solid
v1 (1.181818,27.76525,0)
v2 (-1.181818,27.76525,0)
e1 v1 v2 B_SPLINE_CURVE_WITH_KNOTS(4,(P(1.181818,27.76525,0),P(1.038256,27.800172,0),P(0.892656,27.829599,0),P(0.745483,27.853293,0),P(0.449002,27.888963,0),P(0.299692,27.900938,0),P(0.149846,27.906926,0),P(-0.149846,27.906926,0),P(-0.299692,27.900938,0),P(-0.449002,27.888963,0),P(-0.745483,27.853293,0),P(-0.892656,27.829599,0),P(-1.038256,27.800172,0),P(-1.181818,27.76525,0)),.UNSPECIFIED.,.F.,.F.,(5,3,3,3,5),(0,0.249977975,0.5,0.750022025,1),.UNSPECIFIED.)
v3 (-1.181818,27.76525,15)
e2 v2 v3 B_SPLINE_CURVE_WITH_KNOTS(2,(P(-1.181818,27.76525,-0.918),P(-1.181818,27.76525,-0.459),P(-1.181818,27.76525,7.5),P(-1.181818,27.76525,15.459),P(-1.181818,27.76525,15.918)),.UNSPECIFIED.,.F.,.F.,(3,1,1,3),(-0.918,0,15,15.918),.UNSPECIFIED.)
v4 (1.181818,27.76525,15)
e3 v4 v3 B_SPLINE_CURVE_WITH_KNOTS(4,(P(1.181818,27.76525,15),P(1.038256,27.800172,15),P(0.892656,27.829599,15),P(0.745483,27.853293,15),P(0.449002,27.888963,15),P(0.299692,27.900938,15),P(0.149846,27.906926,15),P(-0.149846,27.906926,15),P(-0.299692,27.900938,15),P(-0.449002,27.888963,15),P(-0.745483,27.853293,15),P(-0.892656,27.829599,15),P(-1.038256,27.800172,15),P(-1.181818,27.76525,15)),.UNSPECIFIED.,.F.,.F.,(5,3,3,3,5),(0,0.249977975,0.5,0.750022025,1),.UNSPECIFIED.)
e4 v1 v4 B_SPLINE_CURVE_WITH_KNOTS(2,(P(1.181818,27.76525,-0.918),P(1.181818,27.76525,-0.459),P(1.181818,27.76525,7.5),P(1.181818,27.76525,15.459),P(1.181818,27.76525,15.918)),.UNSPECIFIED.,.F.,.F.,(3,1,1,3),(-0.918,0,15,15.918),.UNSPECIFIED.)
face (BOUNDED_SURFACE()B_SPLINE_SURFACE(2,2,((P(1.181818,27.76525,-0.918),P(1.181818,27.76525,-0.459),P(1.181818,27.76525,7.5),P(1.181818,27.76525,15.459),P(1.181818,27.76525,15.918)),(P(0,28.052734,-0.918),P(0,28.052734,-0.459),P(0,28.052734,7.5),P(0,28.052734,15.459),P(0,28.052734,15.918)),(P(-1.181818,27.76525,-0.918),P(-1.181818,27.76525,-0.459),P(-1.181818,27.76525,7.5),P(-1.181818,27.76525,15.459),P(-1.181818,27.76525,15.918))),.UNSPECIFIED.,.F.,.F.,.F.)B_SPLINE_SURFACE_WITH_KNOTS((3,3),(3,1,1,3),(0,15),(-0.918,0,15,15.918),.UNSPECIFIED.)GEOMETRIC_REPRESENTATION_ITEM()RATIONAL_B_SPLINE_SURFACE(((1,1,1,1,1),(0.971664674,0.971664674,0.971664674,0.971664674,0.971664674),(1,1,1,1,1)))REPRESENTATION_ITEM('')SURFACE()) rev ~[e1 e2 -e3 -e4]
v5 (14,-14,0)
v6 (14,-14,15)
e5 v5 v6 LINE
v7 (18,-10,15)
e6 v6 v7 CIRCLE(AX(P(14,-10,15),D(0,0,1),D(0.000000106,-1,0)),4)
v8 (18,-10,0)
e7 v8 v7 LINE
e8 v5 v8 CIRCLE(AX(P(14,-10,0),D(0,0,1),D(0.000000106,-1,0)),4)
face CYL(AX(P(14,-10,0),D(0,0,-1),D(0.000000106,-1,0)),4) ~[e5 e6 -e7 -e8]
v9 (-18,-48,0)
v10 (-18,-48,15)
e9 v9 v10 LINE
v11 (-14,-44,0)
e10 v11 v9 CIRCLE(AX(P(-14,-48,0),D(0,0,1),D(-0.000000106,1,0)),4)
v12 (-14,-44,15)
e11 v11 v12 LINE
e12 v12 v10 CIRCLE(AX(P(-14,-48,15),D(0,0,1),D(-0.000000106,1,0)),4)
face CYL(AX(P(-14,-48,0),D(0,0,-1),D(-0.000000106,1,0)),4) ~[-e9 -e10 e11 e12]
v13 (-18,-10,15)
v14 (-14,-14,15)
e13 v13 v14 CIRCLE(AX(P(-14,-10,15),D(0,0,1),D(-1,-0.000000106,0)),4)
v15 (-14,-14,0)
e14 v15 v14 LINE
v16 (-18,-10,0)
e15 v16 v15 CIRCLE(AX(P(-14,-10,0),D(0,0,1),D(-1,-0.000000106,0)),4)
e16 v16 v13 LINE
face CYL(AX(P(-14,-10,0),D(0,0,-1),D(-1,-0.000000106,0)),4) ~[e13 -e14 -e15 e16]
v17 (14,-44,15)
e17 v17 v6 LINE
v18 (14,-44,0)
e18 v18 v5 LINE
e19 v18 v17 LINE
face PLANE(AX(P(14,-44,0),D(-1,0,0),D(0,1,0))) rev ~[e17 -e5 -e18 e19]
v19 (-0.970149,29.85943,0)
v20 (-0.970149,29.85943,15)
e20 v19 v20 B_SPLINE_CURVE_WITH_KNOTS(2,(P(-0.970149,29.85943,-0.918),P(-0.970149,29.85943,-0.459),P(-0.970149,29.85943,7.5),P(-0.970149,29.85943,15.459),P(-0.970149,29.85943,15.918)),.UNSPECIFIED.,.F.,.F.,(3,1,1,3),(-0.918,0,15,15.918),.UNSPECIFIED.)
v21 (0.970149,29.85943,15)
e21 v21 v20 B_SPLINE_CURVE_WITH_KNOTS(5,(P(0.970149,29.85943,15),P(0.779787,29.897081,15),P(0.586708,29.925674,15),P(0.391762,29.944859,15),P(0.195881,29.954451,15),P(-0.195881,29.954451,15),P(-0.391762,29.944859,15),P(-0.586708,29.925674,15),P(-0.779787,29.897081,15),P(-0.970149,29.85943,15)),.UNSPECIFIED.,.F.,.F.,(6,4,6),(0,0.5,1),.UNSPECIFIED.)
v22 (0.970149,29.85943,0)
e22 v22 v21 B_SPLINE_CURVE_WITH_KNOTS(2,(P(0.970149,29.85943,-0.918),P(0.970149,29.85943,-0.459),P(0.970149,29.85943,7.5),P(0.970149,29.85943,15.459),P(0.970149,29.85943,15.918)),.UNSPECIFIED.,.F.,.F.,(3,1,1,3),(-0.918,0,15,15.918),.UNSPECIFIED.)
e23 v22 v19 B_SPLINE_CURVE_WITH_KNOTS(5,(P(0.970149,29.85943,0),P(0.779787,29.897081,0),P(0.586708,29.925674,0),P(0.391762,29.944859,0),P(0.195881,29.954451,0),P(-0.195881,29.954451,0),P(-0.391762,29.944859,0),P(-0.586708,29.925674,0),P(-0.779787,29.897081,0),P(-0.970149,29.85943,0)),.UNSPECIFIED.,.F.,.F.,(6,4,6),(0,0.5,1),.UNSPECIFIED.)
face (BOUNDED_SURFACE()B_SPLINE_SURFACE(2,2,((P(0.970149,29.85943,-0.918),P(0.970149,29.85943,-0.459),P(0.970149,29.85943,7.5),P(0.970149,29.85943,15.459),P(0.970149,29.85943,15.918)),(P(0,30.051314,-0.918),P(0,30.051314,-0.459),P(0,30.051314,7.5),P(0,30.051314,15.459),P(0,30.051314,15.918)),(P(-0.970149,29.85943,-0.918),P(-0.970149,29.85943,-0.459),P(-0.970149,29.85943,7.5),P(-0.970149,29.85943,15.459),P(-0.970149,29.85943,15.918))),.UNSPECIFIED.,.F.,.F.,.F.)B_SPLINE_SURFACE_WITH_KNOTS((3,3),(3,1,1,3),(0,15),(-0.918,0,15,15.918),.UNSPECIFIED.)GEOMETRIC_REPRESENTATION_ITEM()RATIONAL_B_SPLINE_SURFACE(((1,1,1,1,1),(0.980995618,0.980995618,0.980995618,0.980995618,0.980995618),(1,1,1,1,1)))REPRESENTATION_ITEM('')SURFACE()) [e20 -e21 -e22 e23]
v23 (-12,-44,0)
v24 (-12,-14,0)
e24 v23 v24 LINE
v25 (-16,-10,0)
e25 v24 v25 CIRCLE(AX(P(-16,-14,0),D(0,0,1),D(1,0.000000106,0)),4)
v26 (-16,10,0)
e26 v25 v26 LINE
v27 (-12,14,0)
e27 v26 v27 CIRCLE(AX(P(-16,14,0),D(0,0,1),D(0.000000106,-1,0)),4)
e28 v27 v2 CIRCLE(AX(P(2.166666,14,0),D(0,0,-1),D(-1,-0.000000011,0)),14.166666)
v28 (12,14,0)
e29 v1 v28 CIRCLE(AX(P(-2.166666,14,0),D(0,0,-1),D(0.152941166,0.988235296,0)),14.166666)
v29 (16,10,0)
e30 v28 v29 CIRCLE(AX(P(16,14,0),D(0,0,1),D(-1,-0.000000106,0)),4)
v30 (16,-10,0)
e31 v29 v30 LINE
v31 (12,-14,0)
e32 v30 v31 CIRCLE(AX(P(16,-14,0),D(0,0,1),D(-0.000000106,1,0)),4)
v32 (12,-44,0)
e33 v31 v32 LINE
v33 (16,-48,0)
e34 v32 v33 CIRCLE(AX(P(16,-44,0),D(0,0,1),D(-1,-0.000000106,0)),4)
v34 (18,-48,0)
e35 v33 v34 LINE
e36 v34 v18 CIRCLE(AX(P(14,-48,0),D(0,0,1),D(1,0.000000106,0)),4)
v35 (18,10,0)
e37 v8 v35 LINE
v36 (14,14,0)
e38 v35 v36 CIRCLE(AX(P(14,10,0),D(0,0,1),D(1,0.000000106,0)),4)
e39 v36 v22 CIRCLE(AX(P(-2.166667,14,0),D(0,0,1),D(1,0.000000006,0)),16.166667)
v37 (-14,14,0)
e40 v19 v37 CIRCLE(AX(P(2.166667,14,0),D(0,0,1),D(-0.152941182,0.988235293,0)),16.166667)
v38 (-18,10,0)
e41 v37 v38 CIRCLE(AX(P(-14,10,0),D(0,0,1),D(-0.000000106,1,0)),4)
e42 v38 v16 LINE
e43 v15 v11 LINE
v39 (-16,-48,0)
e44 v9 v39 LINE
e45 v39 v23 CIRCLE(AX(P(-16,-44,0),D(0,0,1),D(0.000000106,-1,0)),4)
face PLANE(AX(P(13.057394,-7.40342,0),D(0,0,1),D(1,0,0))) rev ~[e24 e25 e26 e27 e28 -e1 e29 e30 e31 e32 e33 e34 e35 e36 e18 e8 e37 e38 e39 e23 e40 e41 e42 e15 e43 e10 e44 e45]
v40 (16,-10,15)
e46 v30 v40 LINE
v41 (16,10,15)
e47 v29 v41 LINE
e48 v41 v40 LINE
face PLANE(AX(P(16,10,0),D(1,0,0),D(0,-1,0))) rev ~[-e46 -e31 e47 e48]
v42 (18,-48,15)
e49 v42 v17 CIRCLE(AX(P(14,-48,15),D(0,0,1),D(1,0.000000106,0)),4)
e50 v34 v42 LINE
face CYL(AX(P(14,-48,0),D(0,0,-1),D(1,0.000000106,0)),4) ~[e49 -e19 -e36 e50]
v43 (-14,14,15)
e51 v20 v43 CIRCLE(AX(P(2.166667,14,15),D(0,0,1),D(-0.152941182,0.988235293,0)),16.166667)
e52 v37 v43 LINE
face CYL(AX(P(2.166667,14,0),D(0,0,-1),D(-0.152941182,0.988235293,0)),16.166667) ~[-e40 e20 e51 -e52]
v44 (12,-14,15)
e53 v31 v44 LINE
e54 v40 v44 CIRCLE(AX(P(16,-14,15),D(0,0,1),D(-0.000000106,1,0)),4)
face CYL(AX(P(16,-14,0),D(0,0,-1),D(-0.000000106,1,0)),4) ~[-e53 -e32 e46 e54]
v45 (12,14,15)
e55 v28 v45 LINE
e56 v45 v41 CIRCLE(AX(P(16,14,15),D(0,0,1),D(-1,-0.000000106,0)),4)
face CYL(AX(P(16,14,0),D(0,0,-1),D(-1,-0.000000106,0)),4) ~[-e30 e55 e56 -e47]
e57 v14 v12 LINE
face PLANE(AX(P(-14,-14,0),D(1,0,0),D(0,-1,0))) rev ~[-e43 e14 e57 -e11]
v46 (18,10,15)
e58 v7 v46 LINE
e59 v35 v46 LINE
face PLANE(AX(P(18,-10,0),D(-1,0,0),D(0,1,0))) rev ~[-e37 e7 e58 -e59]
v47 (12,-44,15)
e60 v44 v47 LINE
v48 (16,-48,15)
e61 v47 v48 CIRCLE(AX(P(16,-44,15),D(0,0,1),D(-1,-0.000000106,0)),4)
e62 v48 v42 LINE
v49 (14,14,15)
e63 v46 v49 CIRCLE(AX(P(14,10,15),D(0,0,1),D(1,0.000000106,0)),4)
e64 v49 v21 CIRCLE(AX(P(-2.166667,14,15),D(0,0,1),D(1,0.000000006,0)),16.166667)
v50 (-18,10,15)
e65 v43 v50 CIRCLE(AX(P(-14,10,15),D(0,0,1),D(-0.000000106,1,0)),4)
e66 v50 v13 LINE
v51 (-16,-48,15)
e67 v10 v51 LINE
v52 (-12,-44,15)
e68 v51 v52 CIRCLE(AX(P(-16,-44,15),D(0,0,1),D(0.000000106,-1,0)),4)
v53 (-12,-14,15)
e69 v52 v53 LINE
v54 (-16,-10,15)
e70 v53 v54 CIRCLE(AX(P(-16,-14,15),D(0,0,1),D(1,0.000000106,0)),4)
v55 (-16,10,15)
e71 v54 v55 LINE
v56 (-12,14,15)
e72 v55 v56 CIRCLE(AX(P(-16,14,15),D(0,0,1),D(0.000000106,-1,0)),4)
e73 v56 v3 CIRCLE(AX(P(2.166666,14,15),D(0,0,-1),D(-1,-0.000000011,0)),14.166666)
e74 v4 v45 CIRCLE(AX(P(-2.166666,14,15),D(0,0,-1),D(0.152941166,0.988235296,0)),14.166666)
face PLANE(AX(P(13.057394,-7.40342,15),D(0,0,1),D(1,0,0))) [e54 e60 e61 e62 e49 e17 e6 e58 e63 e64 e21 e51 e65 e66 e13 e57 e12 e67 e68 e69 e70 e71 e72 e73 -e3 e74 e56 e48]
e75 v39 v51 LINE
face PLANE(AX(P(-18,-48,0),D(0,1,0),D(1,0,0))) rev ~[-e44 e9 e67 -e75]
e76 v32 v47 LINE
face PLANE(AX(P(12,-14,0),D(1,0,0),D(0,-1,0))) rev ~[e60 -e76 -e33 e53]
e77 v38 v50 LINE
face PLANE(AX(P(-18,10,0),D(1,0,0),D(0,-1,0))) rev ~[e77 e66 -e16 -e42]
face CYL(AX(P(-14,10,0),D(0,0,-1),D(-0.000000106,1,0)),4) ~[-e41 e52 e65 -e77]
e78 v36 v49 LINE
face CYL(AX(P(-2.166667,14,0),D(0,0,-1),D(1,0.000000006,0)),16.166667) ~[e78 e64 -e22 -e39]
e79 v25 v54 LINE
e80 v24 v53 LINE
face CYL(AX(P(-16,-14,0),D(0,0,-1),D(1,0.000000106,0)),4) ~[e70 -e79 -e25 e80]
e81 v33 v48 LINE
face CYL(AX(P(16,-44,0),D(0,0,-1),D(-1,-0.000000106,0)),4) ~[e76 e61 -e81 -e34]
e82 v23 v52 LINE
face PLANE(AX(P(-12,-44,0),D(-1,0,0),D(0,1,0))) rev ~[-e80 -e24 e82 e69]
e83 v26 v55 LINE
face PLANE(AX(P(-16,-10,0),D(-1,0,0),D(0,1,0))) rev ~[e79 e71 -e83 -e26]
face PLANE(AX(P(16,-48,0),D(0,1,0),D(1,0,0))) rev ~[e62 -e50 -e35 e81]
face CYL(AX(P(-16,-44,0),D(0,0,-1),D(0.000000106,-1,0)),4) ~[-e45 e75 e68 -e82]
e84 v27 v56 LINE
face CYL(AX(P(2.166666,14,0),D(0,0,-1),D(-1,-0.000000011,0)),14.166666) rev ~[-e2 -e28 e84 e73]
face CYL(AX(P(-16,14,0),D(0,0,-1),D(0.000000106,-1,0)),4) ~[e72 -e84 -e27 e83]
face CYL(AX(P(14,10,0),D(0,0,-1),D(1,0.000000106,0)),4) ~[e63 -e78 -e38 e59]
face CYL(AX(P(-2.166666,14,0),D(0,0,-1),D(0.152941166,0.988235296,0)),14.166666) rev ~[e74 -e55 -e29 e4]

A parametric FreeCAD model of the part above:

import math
import FreeCAD as App
import Part
import Sketcher
from FreeCAD import Vector


def edges_at(feature, points):
    """Names of the edges that pass closest to the given points."""
    edges = feature.Shape.Edges
    near = lambda p: min(range(len(edges)), key=lambda i: edges[i].distToShape(Part.Vertex(*p))[0])
    return sorted({f"Edge{near(p) + 1}" for p in points})

doc = App.newDocument("Part")
params = doc.addObject("Spreadsheet::Sheet", "Params")
for row, (alias, value) in enumerate([
    ("sketch1_radius", "4 mm"),
    ("sketch1_width", "2 mm"),
    ("sketch1_height", "20 mm"),
    ("sketch1_height2", "30 mm"),
    ("pad1_length", "15 mm"),
    ("fillet_radius", "5 mm"),
], start=1):
    params.set(f"A{row}", alias)
    params.set(f"B{row}", "=" + value)
    params.setAlias(f"B{row}", alias)

body = doc.addObject("PartDesign::Body", "Body")

sketch1 = body.newObject("Sketcher::SketchObject", "Sketch")
sketch1.AttachmentSupport = (doc.getObject("XY_Plane"), [""])
sketch1.MapMode = "FlatFace"
sketch1.addGeometry(Part.ArcOfCircle(Part.Circle(Vector(-2.17, 14, 0), Vector(0, 0, 1), 14.17), math.radians(0), math.radians(81)), False)
sketch1.addGeometry(Part.ArcOfCircle(Part.Circle(Vector(16, 14, 0), Vector(0, 0, 1), 4), math.radians(-180), math.radians(-90)), False)
sketch1.addGeometry(Part.LineSegment(Vector(16, 10, 0), Vector(16, -10, 0)), False)
sketch1.addGeometry(Part.ArcOfCircle(Part.Circle(Vector(16, -14, 0), Vector(0, 0, 1), 4), math.radians(90), math.radians(180)), False)
sketch1.addGeometry(Part.LineSegment(Vector(12, -14, 0), Vector(12, -44, 0)), False)
sketch1.addGeometry(Part.ArcOfCircle(Part.Circle(Vector(16, -44, 0), Vector(0, 0, 1), 4), math.radians(-180), math.radians(-90)), False)
sketch1.addGeometry(Part.LineSegment(Vector(16, -48, 0), Vector(18, -48, 0)), False)
sketch1.addGeometry(Part.ArcOfCircle(Part.Circle(Vector(14, -48, 0), Vector(0, 0, 1), 4), math.radians(0), math.radians(90)), False)
sketch1.addGeometry(Part.LineSegment(Vector(14, -44, 0), Vector(14, -14, 0)), False)
sketch1.addGeometry(Part.ArcOfCircle(Part.Circle(Vector(14, -10, 0), Vector(0, 0, 1), 4), math.radians(-90), math.radians(0)), False)
sketch1.addGeometry(Part.LineSegment(Vector(18, -10, 0), Vector(18, 10, 0)), False)
sketch1.addGeometry(Part.ArcOfCircle(Part.Circle(Vector(14, 10, 0), Vector(0, 0, 1), 4), math.radians(0), math.radians(90)), False)
sketch1.addGeometry(Part.ArcOfCircle(Part.Circle(Vector(-2.17, 14, 0), Vector(0, 0, 1), 16.17), math.radians(0), math.radians(81)), False)
sketch1.addGeometry(Part.LineSegment(Vector(0.31, 29.98, 0), Vector(0, 30, 0)), False)
sketch1.addGeometry(Part.LineSegment(Vector(0, 30, 0), Vector(-0.31, 29.98, 0)), False)
sketch1.addGeometry(Part.ArcOfCircle(Part.Circle(Vector(2.17, 14, 0), Vector(0, 0, 1), 16.17), math.radians(99), math.radians(180)), False)
sketch1.addGeometry(Part.ArcOfCircle(Part.Circle(Vector(-14, 10, 0), Vector(0, 0, 1), 4), math.radians(90), math.radians(180)), False)
sketch1.addGeometry(Part.LineSegment(Vector(-18, 10, 0), Vector(-18, -10, 0)), False)
sketch1.addGeometry(Part.ArcOfCircle(Part.Circle(Vector(-14, -10, 0), Vector(0, 0, 1), 4), math.radians(-180), math.radians(-90)), False)
sketch1.addGeometry(Part.LineSegment(Vector(-14, -14, 0), Vector(-14, -44, 0)), False)
sketch1.addGeometry(Part.ArcOfCircle(Part.Circle(Vector(-14, -48, 0), Vector(0, 0, 1), 4), math.radians(90), math.radians(180)), False)
sketch1.addGeometry(Part.LineSegment(Vector(-18, -48, 0), Vector(-16, -48, 0)), False)
sketch1.addGeometry(Part.ArcOfCircle(Part.Circle(Vector(-16, -44, 0), Vector(0, 0, 1), 4), math.radians(-90), math.radians(0)), False)
sketch1.addGeometry(Part.LineSegment(Vector(-12, -44, 0), Vector(-12, -14, 0)), False)
sketch1.addGeometry(Part.ArcOfCircle(Part.Circle(Vector(-16, -14, 0), Vector(0, 0, 1), 4), math.radians(0), math.radians(90)), False)
sketch1.addGeometry(Part.LineSegment(Vector(-16, -10, 0), Vector(-16, 10, 0)), False)
sketch1.addGeometry(Part.ArcOfCircle(Part.Circle(Vector(-16, 14, 0), Vector(0, 0, 1), 4), math.radians(-90), math.radians(0)), False)
sketch1.addGeometry(Part.ArcOfCircle(Part.Circle(Vector(2.17, 14, 0), Vector(0, 0, 1), 14.17), math.radians(99), math.radians(180)), False)
sketch1.addConstraint(Sketcher.Constraint("Tangent", 0, 1, 1, 1))
sketch1.addConstraint(Sketcher.Constraint("Coincident", 1, 2, 2, 1))
sketch1.addConstraint(Sketcher.Constraint("Coincident", 2, 2, 3, 1))
sketch1.addConstraint(Sketcher.Constraint("Tangent", 3, 2, 4, 1))
sketch1.addConstraint(Sketcher.Constraint("Tangent", 4, 2, 5, 1))
sketch1.addConstraint(Sketcher.Constraint("Tangent", 5, 2, 6, 1))
sketch1.addConstraint(Sketcher.Constraint("Coincident", 6, 2, 7, 1))
sketch1.addConstraint(Sketcher.Constraint("Coincident", 7, 2, 8, 1))
sketch1.addConstraint(Sketcher.Constraint("Coincident", 8, 2, 9, 1))
sketch1.addConstraint(Sketcher.Constraint("Tangent", 9, 2, 10, 1))
sketch1.addConstraint(Sketcher.Constraint("Tangent", 10, 2, 11, 1))
sketch1.addConstraint(Sketcher.Constraint("Coincident", 11, 2, 12, 1))
sketch1.addConstraint(Sketcher.Constraint("Coincident", 12, 2, 13, 1))
sketch1.addConstraint(Sketcher.Constraint("Coincident", 13, 2, 14, 1))
sketch1.addConstraint(Sketcher.Constraint("Coincident", 14, 2, 15, 1))
sketch1.addConstraint(Sketcher.Constraint("Coincident", 15, 2, 16, 1))
sketch1.addConstraint(Sketcher.Constraint("Tangent", 16, 2, 17, 1))
sketch1.addConstraint(Sketcher.Constraint("Tangent", 17, 2, 18, 1))
sketch1.addConstraint(Sketcher.Constraint("Coincident", 18, 2, 19, 1))
sketch1.addConstraint(Sketcher.Constraint("Coincident", 19, 2, 20, 1))
sketch1.addConstraint(Sketcher.Constraint("Coincident", 20, 2, 21, 1))
sketch1.addConstraint(Sketcher.Constraint("Tangent", 21, 2, 22, 1))
sketch1.addConstraint(Sketcher.Constraint("Tangent", 22, 2, 23, 1))
sketch1.addConstraint(Sketcher.Constraint("Tangent", 23, 2, 24, 1))
sketch1.addConstraint(Sketcher.Constraint("Coincident", 24, 2, 25, 1))
sketch1.addConstraint(Sketcher.Constraint("Coincident", 25, 2, 26, 1))
sketch1.addConstraint(Sketcher.Constraint("Tangent", 26, 2, 27, 2))
sketch1.addConstraint(Sketcher.Constraint("Coincident", 27, 1, 0, 2))
sketch1.addConstraint(Sketcher.Constraint("Vertical", 2))
sketch1.addConstraint(Sketcher.Constraint("Vertical", 4))
sketch1.addConstraint(Sketcher.Constraint("Horizontal", 6))
sketch1.addConstraint(Sketcher.Constraint("Vertical", 8))
sketch1.addConstraint(Sketcher.Constraint("Vertical", 10))
sketch1.addConstraint(Sketcher.Constraint("Vertical", 17))
sketch1.addConstraint(Sketcher.Constraint("Vertical", 19))
sketch1.addConstraint(Sketcher.Constraint("Horizontal", 21))
sketch1.addConstraint(Sketcher.Constraint("Vertical", 23))
sketch1.addConstraint(Sketcher.Constraint("Vertical", 25))
sketch1.addConstraint(Sketcher.Constraint("Coincident", 12, 3, 0, 3))
sketch1.addConstraint(Sketcher.Constraint("Coincident", 27, 3, 15, 3))
sketch1.addConstraint(Sketcher.Constraint("Equal", 1, 3))
sketch1.addConstraint(Sketcher.Constraint("Equal", 3, 5))
sketch1.addConstraint(Sketcher.Constraint("Equal", 5, 7))
sketch1.addConstraint(Sketcher.Constraint("Equal", 7, 9))
sketch1.addConstraint(Sketcher.Constraint("Equal", 9, 11))
sketch1.addConstraint(Sketcher.Constraint("Equal", 12, 15))
sketch1.addConstraint(Sketcher.Constraint("Equal", 11, 16))
sketch1.addConstraint(Sketcher.Constraint("Equal", 16, 18))
sketch1.addConstraint(Sketcher.Constraint("Equal", 18, 20))
sketch1.addConstraint(Sketcher.Constraint("Equal", 20, 22))
sketch1.addConstraint(Sketcher.Constraint("Equal", 22, 24))
sketch1.addConstraint(Sketcher.Constraint("Equal", 24, 26))
sketch1.addConstraint(Sketcher.Constraint("Equal", 0, 27))
sketch1.addConstraint(Sketcher.Constraint("Symmetric", 9, 3, 16, 3, -1, 1))
sketch1.addConstraint(Sketcher.Constraint("Symmetric", 1, 3, 24, 3, -1, 1))
sketch1.addConstraint(Sketcher.Constraint("Symmetric", 3, 3, 26, 3, -1, 1))
sketch1.addConstraint(Sketcher.Constraint("Symmetric", 11, 2, 18, 2, -1, 1))
sketch1.addConstraint(Sketcher.Constraint("Symmetric", 0, 3, 15, 3, -2))
sketch1.addConstraint(Sketcher.Constraint("Symmetric", 7, 3, 20, 3, -2))
sketch1.addConstraint(Sketcher.Constraint("Symmetric", 8, 2, 18, 2, -2))
sketch1.addConstraint(Sketcher.Constraint("Symmetric", 2, 2, 24, 2, -2))
sketch1.addConstraint(Sketcher.Constraint("PointOnObject", 13, 2, -2))
sketch1.addConstraint(Sketcher.Constraint("Horizontal", 0, 3, 1, 3))
sketch1.addConstraint(Sketcher.Constraint("Horizontal", 5, 3, 22, 3))
sketch1.addConstraint(Sketcher.Constraint("Horizontal", 16, 3, 1, 2))
sketch1.addConstraint(Sketcher.Constraint("Horizontal", 20, 3, 5, 2))
sketch1.addConstraint(Sketcher.Constraint("Horizontal", 12, 2, 14, 2))
sketch1.addConstraint(Sketcher.Constraint("Vertical", 7, 3, 9, 3))
sketch1.addConstraint(Sketcher.Constraint("Vertical", 5, 3, 1, 2))
sketch1.addConstraint(Sketcher.Constraint("Vertical", 11, 3, 7, 2))
sketch1.addConstraint(Sketcher.Constraint("Radius", 1, 4.0))
sketch1.addConstraint(Sketcher.Constraint("DistanceX", 6, 1, 6, 2, 2.0))
sketch1.addConstraint(Sketcher.Constraint("DistanceY", 2, 2, 2, 1, 20.0))
sketch1.addConstraint(Sketcher.Constraint("DistanceY", 4, 2, 4, 1, 30.0))
sketch1.addConstraint(Sketcher.Constraint("DistanceX", -1, 1, 1, 3, 16.0))
sketch1.addConstraint(Sketcher.Constraint("DistanceY", -1, 1, 13, 2, 30.0))
sketch1.addConstraint(Sketcher.Constraint("DistanceY", -1, 1, 27, 1, 28.0))
sketch1.addConstraint(Sketcher.Constraint("DistanceY", -1, 1, 12, 2, 29.976471))
sketch1.setExpression("Constraints[70]", "Params.sketch1_radius")
sketch1.setExpression("Constraints[71]", "Params.sketch1_width")
sketch1.setExpression("Constraints[72]", "Params.sketch1_height")
sketch1.setExpression("Constraints[73]", "Params.sketch1_height2")
pad1 = body.newObject("PartDesign::Pad", "Pad")
pad1.Profile = sketch1
pad1.setExpression("Length", "Params.pad1_length")
doc.recompute()

fillet = body.newObject("PartDesign::Fillet", "Fillet")
fillet.Base = (pad1, edges_at(pad1, [(0, 30, 7.5), (0, 28, 7.5)]))
fillet.setExpression("Radius", "Params.fillet_radius")

doc.recompute()
